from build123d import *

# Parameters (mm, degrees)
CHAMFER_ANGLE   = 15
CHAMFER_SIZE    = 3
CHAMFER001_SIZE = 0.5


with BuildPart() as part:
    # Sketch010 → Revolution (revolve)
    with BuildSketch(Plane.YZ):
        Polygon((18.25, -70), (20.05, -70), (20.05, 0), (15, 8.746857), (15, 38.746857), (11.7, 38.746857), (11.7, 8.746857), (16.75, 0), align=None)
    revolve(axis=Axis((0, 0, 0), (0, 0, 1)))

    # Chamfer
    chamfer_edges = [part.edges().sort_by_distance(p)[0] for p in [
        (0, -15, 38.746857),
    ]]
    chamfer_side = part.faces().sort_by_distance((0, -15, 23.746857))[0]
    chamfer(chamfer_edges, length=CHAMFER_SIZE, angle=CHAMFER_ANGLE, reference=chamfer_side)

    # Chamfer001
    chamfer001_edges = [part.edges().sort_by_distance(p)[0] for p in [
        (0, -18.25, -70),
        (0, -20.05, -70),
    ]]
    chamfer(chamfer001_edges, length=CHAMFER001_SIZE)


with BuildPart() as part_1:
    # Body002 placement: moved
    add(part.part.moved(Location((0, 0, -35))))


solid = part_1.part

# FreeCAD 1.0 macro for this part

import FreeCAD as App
import Part
import Sketcher
Q = App.Units.Quantity


def edges_at(feature, points):
    """Names of the edges that pass closest to the given points."""
    edges = feature.Shape.Edges
    near = lambda p: min(range(len(edges)), key=lambda i: edges[i].distToShape(Part.Vertex(*p))[0])
    return sorted({f"Edge{near(p) + 1}" for p in points})

doc = App.newDocument("Part")
body = doc.addObject("PartDesign::Body", "Body")

# Sketch on YZ plane
sketch1 = body.newObject("Sketcher::SketchObject", "Sketch")
sketch1.AttachmentSupport = (doc.getObject("YZ_Plane"), [""])
sketch1.MapMode = "FlatFace"
sketch1.addGeometry(Part.LineSegment(App.Vector(18.2, -70, 0), App.Vector(20.1, -70, 0)), False)
sketch1.addGeometry(Part.LineSegment(App.Vector(20.1, -70, 0), App.Vector(20.1, 0, 0)), False)
sketch1.addGeometry(Part.LineSegment(App.Vector(20.1, 0, 0), App.Vector(15, 8.7, 0)), False)
sketch1.addGeometry(Part.LineSegment(App.Vector(15, 8.7, 0), App.Vector(15, 38.7, 0)), False)
sketch1.addGeometry(Part.LineSegment(App.Vector(15, 38.7, 0), App.Vector(11.7, 38.7, 0)), False)
sketch1.addGeometry(Part.LineSegment(App.Vector(11.7, 38.7, 0), App.Vector(11.7, 8.7, 0)), False)
sketch1.addGeometry(Part.LineSegment(App.Vector(11.7, 8.7, 0), App.Vector(16.8, 0, 0)), False)
sketch1.addGeometry(Part.LineSegment(App.Vector(16.8, 0, 0), App.Vector(18.2, -70, 0)), False)
sketch1.addConstraint(Sketcher.Constraint("Coincident", 0, 2, 1, 1))
sketch1.addConstraint(Sketcher.Constraint("Coincident", 1, 2, 2, 1))
sketch1.addConstraint(Sketcher.Constraint("Coincident", 2, 2, 3, 1))
sketch1.addConstraint(Sketcher.Constraint("Coincident", 3, 2, 4, 1))
sketch1.addConstraint(Sketcher.Constraint("Coincident", 4, 2, 5, 1))
sketch1.addConstraint(Sketcher.Constraint("Coincident", 5, 2, 6, 1))
sketch1.addConstraint(Sketcher.Constraint("Coincident", 6, 2, 7, 1))
sketch1.addConstraint(Sketcher.Constraint("Coincident", 7, 2, 0, 1))
sketch1.addConstraint(Sketcher.Constraint("Horizontal", 0))
sketch1.addConstraint(Sketcher.Constraint("Vertical", 1))
sketch1.addConstraint(Sketcher.Constraint("Vertical", 3))
sketch1.addConstraint(Sketcher.Constraint("Horizontal", 4))
sketch1.addConstraint(Sketcher.Constraint("Vertical", 5))
sketch1.addConstraint(Sketcher.Constraint("PointOnObject", 1, 2, -1))
sketch1.addConstraint(Sketcher.Constraint("PointOnObject", 6, 2, -1))
sketch1.addConstraint(Sketcher.Constraint("Parallel", 2, 6))
sketch1.addConstraint(Sketcher.Constraint("Horizontal", 2, 2, 5, 2))
sketch1.addConstraint(Sketcher.Constraint("DistanceY", 1, 1, 1, 2, 70.0))
sketch1.addConstraint(Sketcher.Constraint("DistanceY", 3, 1, 3, 2, 30.0))
sketch1.addConstraint(Sketcher.Constraint("Angle", 2, Q("119.999999 deg")))
sketch1.addConstraint(Sketcher.Constraint("DistanceX", 0, 1, 0, 2, 1.8))
sketch1.addConstraint(Sketcher.Constraint("DistanceX", 4, 2, 4, 1, 3.3))
sketch1.addConstraint(Sketcher.Constraint("DistanceX", -1, 1, 2, 2, 15.0))
sketch1.addConstraint(Sketcher.Constraint("Distance", 2, 10.1))
revolution = body.newObject("PartDesign::Revolution", "Revolution")
revolution.Profile = sketch1
revolution.ReferenceAxis = (sketch1, ["V_Axis"])
revolution.Angle = 360
doc.recompute()

chamfer = body.newObject("PartDesign::Chamfer", "Chamfer")
chamfer.Base = (revolution, edges_at(revolution, [(0, -15, 38.747)]))
chamfer.ChamferType = "Distance and Angle"
chamfer.Size = 3
chamfer.Angle = 15
doc.recompute()

chamfer2 = body.newObject("PartDesign::Chamfer", "Chamfer001")
chamfer2.Base = (chamfer, edges_at(chamfer, [(0, -18.25, -70), (0, -20.05, -70)]))
chamfer2.Size = 0.5
body2 = doc.addObject("PartDesign::Body", "Body001")
doc.recompute()

body.Placement = App.Placement(App.Vector(0, 0, -35), App.Rotation(App.Vector(0, 0, 1), 0))
boolean = body2.newObject("PartDesign::Boolean", "Boolean")
boolean.Type = "Fuse"
boolean.addObjects([body])

doc.recompute()
